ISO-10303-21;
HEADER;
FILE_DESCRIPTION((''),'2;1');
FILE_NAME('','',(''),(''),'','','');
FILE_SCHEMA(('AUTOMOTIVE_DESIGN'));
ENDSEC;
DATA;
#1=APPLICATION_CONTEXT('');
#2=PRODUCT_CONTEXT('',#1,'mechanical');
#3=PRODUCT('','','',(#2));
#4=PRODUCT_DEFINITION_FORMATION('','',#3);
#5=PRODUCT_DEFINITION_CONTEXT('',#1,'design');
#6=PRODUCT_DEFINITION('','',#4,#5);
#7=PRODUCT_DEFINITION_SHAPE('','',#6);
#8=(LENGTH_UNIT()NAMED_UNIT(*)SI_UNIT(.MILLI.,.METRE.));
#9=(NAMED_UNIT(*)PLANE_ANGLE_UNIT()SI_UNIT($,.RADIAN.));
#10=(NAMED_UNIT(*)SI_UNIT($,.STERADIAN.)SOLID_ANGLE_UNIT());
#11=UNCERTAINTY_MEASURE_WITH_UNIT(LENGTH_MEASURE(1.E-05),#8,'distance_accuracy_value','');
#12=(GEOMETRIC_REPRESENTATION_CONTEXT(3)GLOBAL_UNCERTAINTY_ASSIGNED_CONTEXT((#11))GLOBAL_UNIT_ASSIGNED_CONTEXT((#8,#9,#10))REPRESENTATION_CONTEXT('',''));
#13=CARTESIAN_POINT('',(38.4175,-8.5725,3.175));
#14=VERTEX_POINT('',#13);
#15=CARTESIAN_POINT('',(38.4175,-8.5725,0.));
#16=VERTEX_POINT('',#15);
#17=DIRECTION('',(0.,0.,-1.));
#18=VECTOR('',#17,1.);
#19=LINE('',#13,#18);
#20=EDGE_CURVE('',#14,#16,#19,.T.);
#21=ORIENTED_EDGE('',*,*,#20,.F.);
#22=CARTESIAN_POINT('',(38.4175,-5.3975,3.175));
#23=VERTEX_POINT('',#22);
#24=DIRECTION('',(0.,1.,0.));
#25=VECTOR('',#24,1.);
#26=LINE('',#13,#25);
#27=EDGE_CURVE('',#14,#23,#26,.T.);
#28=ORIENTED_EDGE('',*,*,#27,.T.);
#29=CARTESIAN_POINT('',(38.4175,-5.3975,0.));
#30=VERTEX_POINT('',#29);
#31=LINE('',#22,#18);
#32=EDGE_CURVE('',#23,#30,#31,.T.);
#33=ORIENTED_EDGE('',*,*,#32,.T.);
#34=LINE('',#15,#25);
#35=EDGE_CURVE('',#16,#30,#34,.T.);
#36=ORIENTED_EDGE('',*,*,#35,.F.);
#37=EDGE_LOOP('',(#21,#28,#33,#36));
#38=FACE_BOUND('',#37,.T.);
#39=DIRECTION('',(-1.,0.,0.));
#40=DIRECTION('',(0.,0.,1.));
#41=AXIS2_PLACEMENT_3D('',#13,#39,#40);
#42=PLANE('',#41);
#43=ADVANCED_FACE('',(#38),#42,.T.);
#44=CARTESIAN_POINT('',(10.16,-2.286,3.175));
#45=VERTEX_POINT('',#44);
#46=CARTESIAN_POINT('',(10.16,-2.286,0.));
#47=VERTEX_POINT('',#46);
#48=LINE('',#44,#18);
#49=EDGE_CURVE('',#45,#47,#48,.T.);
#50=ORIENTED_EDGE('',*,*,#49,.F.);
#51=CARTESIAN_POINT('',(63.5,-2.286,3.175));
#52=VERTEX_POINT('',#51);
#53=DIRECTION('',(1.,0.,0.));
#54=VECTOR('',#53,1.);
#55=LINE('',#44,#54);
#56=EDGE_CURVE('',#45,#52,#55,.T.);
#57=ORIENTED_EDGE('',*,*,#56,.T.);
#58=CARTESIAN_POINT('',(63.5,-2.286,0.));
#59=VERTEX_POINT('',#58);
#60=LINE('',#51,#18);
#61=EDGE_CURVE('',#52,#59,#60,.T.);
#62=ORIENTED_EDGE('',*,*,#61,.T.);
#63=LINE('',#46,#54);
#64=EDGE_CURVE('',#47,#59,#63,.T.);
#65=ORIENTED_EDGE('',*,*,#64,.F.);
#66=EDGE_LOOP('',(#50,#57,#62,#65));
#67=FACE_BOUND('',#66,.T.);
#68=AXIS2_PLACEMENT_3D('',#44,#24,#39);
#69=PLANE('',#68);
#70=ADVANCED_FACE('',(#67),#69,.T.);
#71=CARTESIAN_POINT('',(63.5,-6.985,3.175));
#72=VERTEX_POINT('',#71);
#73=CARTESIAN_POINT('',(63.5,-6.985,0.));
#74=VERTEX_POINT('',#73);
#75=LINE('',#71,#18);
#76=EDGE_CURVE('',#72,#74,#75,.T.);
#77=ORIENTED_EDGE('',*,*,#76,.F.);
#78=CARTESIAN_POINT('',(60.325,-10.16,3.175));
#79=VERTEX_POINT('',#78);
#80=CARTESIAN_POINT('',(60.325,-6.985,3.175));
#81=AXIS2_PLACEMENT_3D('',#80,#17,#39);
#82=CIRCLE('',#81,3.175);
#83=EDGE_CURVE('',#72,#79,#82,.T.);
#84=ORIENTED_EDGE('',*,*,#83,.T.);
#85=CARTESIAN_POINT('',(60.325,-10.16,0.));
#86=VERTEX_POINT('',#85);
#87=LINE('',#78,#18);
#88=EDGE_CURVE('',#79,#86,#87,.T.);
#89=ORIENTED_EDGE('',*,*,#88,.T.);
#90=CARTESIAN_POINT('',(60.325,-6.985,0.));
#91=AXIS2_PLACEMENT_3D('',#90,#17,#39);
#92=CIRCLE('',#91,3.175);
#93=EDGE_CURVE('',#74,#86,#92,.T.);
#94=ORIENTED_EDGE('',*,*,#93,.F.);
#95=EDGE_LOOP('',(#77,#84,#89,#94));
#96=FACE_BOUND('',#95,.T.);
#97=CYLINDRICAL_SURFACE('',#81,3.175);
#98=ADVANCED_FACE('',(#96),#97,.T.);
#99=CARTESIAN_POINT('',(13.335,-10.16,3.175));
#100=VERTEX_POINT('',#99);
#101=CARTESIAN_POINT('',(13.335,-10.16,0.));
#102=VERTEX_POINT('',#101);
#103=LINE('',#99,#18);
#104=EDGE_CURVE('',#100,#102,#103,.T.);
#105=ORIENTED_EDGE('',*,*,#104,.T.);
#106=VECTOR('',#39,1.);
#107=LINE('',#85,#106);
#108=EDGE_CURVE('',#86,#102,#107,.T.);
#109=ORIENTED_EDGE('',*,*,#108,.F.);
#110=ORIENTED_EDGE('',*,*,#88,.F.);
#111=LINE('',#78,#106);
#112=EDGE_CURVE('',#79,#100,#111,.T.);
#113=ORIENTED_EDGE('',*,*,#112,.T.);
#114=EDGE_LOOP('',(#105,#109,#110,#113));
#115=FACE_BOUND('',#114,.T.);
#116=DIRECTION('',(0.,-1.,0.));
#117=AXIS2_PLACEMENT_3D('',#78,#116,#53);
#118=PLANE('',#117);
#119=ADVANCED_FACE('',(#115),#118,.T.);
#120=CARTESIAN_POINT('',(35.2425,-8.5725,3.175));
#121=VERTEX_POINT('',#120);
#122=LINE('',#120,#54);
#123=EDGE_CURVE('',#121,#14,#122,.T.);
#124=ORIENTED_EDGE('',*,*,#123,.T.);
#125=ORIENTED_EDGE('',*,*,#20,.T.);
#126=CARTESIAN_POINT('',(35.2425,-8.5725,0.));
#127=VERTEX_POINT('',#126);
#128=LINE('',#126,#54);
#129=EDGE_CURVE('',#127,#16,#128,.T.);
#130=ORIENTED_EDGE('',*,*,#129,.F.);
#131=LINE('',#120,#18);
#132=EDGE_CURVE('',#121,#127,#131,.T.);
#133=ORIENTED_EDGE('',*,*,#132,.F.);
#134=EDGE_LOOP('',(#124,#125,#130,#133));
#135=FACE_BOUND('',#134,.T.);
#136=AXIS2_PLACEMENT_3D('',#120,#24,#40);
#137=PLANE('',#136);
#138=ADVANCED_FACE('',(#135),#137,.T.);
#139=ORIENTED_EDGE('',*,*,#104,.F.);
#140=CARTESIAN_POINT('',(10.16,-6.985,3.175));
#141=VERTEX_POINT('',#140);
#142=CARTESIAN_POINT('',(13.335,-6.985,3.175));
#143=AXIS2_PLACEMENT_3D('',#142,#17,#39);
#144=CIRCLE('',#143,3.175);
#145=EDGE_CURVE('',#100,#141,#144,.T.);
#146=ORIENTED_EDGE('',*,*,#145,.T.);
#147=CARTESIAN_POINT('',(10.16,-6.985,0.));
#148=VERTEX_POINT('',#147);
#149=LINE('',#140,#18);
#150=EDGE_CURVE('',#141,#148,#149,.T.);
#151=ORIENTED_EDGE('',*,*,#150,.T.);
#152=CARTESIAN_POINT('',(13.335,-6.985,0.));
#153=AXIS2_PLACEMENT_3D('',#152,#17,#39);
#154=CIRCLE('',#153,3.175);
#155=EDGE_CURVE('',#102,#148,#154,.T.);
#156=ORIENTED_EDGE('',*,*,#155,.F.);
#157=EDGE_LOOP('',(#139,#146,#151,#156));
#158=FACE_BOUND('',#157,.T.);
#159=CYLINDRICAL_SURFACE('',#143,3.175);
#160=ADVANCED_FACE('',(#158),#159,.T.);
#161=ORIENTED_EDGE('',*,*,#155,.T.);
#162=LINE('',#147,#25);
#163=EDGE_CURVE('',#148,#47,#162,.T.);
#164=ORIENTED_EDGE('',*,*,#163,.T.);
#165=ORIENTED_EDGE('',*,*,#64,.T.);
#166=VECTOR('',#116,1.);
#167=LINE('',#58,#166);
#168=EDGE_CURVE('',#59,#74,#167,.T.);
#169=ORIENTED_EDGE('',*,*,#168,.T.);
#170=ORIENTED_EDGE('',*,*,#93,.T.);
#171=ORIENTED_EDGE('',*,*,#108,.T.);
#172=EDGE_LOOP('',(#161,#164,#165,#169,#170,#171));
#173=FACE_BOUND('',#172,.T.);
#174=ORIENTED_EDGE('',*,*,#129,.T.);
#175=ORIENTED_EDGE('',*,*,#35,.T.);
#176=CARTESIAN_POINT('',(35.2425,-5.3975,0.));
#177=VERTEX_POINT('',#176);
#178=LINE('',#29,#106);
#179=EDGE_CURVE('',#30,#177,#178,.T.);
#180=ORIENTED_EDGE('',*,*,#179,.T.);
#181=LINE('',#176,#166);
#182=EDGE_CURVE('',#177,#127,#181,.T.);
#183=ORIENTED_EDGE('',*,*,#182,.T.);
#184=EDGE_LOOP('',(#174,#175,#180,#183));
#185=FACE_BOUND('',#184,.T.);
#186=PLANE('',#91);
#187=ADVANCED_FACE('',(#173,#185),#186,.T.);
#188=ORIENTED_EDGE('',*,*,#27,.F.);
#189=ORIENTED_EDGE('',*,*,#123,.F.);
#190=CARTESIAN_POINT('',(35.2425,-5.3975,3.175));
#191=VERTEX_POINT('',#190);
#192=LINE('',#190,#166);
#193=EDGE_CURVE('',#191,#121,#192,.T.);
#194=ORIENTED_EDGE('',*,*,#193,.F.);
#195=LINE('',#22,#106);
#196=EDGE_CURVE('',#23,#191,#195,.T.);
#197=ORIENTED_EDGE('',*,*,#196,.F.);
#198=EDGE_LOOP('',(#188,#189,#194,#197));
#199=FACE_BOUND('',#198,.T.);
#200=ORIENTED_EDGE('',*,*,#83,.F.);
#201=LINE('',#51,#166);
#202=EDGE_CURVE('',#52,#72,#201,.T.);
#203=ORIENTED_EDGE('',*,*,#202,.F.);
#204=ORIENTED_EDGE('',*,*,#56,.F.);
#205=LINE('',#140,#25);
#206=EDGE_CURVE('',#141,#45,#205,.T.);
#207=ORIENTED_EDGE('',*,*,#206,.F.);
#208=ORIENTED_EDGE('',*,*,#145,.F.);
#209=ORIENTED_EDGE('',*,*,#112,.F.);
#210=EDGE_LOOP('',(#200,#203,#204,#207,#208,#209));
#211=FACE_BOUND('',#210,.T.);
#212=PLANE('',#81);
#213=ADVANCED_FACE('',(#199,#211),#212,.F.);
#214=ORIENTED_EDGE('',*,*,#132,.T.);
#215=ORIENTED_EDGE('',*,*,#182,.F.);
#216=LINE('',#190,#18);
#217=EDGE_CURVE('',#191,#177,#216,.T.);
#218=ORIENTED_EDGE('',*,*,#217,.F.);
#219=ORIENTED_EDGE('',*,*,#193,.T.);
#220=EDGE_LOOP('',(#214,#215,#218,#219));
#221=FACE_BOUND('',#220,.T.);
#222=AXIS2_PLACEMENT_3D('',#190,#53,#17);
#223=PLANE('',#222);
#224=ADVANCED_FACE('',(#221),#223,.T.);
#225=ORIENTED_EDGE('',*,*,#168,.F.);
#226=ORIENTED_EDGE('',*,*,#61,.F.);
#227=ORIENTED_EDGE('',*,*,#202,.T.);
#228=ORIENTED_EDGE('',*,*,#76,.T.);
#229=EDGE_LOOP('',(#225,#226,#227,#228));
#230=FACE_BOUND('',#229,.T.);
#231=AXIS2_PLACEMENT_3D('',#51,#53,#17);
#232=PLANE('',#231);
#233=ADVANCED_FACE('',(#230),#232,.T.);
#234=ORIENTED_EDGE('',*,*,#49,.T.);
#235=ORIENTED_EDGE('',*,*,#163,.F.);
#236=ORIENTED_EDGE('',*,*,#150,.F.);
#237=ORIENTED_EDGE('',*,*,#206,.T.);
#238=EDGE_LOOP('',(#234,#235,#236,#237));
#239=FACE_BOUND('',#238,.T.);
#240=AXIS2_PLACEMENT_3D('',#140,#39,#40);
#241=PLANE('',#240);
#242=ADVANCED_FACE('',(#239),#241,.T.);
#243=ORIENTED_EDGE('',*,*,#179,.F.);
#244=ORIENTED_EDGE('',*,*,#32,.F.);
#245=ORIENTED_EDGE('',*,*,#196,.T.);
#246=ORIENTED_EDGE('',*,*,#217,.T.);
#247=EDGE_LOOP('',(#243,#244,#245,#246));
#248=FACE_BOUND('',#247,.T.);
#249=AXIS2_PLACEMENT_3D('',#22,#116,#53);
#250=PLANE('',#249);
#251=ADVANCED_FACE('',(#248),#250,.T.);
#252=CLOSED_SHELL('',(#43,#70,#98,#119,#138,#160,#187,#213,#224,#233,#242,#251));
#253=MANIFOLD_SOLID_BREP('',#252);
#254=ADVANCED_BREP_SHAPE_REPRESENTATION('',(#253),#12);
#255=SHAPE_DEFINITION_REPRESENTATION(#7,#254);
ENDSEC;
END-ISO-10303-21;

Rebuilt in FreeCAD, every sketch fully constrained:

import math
import FreeCAD as App
import Part
import Sketcher
Q = App.Units.Quantity


def add_polygon(sketch, points):
    """Adds a closed chain of lines whose ends are joined by coincident constraints."""
    first, n = sketch.GeometryCount, len(points)
    for a, b in zip(points, points[1:] + points[:1]):
        sketch.addGeometry(Part.LineSegment(App.Vector(*a, 0), App.Vector(*b, 0)), False)
    for i in range(n):
        sketch.addConstraint(Sketcher.Constraint("Coincident", first + i, 2, first + (i + 1) % n, 1))

doc = App.newDocument("Part")
body = doc.addObject("PartDesign::Body", "Body")

# Sketch on XY plane
sketch1 = body.newObject("Sketcher::SketchObject", "Sketch")
sketch1.AttachmentSupport = (doc.getObject("XY_Plane"), [""])
sketch1.MapMode = "FlatFace"
sketch1.addGeometry(Part.LineSegment(App.Vector(63.5, -2.3, 0), App.Vector(10.2, -2.3, 0)), False)  # 0
sketch1.addGeometry(Part.LineSegment(App.Vector(10.2, -2.3, 0), App.Vector(10.2, -7, 0)), False)  # 1
sketch1.addGeometry(Part.ArcOfCircle(Part.Circle(App.Vector(13.3, -7, 0), App.Vector(0, 0, 1), 3.2), math.radians(-180), math.radians(-90)), False)  # 2
sketch1.addGeometry(Part.LineSegment(App.Vector(13.3, -10.2, 0), App.Vector(60.3, -10.2, 0)), False)  # 3
sketch1.addGeometry(Part.ArcOfCircle(Part.Circle(App.Vector(60.3, -7, 0), App.Vector(0, 0, 1), 3.2), math.radians(-90), math.radians(0)), False)  # 4
sketch1.addGeometry(Part.LineSegment(App.Vector(63.5, -7, 0), App.Vector(63.5, -2.3, 0)), False)  # 5
add_polygon(sketch1, [(35.2, -8.6), (35.2, -5.4), (38.4, -5.4), (38.4, -8.6)])  # lines 6-9
sketch1.addConstraint([
    Sketcher.Constraint("Coincident", 0, 2, 1, 1),
    Sketcher.Constraint("Tangent", 1, 2, 2, 1),
    Sketcher.Constraint("Tangent", 2, 2, 3, 1),
    Sketcher.Constraint("Tangent", 3, 2, 4, 1),
    Sketcher.Constraint("Tangent", 4, 2, 5, 1),
    Sketcher.Constraint("Coincident", 5, 2, 0, 1),
    Sketcher.Constraint("Horizontal", 0),
    Sketcher.Constraint("Vertical", 1),
    Sketcher.Constraint("Horizontal", 3),
    Sketcher.Constraint("Vertical", 5),
    Sketcher.Constraint("Vertical", 6),
    Sketcher.Constraint("Horizontal", 7),
    Sketcher.Constraint("Vertical", 8),
    Sketcher.Constraint("Horizontal", 9),
    Sketcher.Constraint("Equal", 2, 4),
    Sketcher.Constraint("Equal", 9, 6),
    Sketcher.Constraint("DistanceX", 0, 2, 0, 1, Q("2.1 in")),
    Sketcher.Constraint("Radius", 2, Q("0.125 in")),
    Sketcher.Constraint("DistanceX", -1, 1, 0, 2, Q("0.4 in")),
    Sketcher.Constraint("DistanceY", 2, 2, -1, 1, Q("0.4 in")),
    Sketcher.Constraint("DistanceX", 7, 1, 7, 2, Q("0.125 in")),
    Sketcher.Constraint("DistanceY", 1, 2, 1, 1, Q("0.185 in")),
    Sketcher.Constraint("DistanceY", 2, 3, 6, 2, Q("0.0625 in")),
    Sketcher.Constraint("DistanceX", -1, 1, 6, 2, Q("1.3875 in")),
])
pad1 = body.newObject("PartDesign::Pad", "Pad")
pad1.Profile = sketch1
pad1.Length = Q("0.125 in")

doc.recompute()
